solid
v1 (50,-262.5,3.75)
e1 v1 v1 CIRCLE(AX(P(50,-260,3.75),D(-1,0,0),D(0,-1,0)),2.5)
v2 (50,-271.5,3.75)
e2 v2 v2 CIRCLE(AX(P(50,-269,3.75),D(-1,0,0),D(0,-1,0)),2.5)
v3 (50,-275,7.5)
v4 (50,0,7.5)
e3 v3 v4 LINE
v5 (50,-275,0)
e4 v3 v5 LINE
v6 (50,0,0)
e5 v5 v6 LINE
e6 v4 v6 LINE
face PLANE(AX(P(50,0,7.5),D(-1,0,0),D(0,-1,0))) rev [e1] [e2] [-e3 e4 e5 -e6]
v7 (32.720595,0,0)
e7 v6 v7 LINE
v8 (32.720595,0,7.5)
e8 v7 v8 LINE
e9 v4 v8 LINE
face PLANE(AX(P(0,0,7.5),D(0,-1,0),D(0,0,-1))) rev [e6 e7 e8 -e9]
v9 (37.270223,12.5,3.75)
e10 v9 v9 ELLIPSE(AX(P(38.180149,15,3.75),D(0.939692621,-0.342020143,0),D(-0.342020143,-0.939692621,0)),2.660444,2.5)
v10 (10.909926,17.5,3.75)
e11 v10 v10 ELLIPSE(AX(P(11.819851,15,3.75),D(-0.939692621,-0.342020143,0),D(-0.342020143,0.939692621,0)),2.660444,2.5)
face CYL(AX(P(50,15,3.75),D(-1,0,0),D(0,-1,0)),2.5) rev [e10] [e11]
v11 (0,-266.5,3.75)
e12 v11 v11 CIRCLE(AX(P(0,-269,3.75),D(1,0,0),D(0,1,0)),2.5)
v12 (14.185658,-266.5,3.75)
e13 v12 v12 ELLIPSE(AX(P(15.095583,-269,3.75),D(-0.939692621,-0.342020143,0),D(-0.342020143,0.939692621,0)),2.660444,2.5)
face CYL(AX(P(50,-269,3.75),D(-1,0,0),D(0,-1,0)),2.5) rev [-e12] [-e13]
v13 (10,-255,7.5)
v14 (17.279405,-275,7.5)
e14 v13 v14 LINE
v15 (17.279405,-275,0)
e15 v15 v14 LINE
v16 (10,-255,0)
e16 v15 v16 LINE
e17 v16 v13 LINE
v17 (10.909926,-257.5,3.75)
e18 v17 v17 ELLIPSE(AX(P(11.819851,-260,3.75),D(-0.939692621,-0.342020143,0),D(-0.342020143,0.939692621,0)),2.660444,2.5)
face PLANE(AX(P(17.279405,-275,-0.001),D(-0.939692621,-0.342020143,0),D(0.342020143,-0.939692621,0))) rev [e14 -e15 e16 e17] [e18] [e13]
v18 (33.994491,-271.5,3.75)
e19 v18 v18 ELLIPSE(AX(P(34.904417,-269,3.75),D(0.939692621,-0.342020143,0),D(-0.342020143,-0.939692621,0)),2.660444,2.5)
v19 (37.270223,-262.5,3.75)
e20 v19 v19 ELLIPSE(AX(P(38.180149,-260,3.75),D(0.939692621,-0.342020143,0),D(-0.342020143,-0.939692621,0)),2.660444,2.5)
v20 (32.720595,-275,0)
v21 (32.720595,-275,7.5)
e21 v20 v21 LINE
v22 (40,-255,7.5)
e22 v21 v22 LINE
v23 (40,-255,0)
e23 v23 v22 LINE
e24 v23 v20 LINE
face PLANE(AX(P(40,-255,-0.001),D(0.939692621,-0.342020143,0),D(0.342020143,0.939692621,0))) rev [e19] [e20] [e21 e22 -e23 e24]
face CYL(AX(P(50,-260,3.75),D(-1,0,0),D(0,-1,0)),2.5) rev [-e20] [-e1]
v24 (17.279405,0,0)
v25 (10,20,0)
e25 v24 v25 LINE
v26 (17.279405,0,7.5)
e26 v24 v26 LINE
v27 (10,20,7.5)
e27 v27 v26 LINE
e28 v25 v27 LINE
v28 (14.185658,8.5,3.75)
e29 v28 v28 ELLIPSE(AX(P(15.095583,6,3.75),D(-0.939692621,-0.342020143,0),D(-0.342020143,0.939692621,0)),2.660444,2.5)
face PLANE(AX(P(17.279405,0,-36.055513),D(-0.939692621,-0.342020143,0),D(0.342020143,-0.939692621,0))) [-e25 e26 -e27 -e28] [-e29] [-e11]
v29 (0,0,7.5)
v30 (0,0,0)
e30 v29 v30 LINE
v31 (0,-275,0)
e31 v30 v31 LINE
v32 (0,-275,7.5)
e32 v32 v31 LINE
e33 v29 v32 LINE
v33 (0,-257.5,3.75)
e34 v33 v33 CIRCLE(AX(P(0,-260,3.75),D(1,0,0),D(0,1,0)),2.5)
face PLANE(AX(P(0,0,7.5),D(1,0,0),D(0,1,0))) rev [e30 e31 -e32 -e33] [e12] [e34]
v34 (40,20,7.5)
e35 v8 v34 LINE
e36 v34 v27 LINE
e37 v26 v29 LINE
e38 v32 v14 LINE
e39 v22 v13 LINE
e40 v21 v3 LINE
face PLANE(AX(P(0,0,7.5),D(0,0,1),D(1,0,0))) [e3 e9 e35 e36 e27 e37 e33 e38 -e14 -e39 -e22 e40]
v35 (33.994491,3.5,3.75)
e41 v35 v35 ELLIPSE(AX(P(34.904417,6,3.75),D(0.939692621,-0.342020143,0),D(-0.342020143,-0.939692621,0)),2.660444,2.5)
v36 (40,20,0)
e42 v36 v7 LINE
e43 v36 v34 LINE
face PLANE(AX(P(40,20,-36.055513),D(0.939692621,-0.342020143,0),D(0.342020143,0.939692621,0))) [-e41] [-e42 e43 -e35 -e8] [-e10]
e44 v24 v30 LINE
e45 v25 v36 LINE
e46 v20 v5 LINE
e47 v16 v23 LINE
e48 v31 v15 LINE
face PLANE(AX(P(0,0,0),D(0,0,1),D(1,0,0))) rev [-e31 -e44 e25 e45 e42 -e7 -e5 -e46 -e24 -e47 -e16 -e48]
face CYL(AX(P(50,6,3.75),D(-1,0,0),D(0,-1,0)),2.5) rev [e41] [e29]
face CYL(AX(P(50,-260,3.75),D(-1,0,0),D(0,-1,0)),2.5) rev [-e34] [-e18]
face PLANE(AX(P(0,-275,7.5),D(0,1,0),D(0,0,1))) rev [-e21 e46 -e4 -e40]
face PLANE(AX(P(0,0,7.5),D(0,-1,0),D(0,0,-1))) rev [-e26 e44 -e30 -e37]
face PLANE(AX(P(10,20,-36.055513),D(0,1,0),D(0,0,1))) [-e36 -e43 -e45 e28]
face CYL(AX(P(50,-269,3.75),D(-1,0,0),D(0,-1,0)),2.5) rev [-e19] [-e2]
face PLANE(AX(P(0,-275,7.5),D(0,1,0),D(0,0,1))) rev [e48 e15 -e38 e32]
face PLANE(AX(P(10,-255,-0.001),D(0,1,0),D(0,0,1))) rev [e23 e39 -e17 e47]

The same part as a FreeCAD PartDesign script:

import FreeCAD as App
import Part
import Sketcher

V = App.Vector
Q = App.Units.Quantity

doc = App.newDocument("Part")
body = doc.addObject("PartDesign::Body", "Body")

# Sketch on XY plane
sketch1 = doc.addObject("Sketcher::SketchObject", "Sketch")
body.addObject(sketch1)
sketch1.AttachmentSupport = (doc.XY_Plane, [""])
sketch1.MapMode = "FlatFace"
sketch1.addGeometry(Part.LineSegment(V(0, 0, 0), V(0, -275, 0)), False)
sketch1.addGeometry(Part.LineSegment(V(0, -275, 0), V(50, -275, 0)), False)
sketch1.addGeometry(Part.LineSegment(V(50, -275, 0), V(50, 0, 0)), False)
sketch1.addGeometry(Part.LineSegment(V(50, 0, 0), V(0, 0, 0)), False)
sketch1.addConstraint(Sketcher.Constraint("Coincident", 0, 2, 1, 1))
sketch1.addConstraint(Sketcher.Constraint("Coincident", 1, 2, 2, 1))
sketch1.addConstraint(Sketcher.Constraint("Coincident", 2, 2, 3, 1))
sketch1.addConstraint(Sketcher.Constraint("Coincident", 3, 2, 0, 1))
sketch1.addConstraint(Sketcher.Constraint("Vertical", 0))
sketch1.addConstraint(Sketcher.Constraint("Horizontal", 1))
sketch1.addConstraint(Sketcher.Constraint("Vertical", 2))
sketch1.addConstraint(Sketcher.Constraint("Horizontal", 3))
sketch1.addConstraint(Sketcher.Constraint("Coincident", 3, 2, -1, 1))
sketch1.addConstraint(Sketcher.Constraint("DistanceX", 1, 1, 1, 2, Q("50 mm")))
sketch1.addConstraint(Sketcher.Constraint("DistanceY", 0, 2, 0, 1, Q("275 mm")))
pad1 = doc.addObject("PartDesign::Pad", "Pad")
body.addObject(pad1)
pad1.Profile = sketch1
pad1.Length = 7.5

# Sketch on XY plane
sketch2 = doc.addObject("Sketcher::SketchObject", "Sketch001")
body.addObject(sketch2)
sketch2.AttachmentSupport = (doc.XY_Plane, [""])
sketch2.MapMode = "FlatFace"
sketch2.AttachmentOffset = App.Placement(V(0, 0, 7.5), App.Rotation())
sketch2.addGeometry(Part.LineSegment(V(10, 20, 0), V(17.279405, 0, 0)), False)
sketch2.addGeometry(Part.LineSegment(V(17.279405, 0, 0), V(32.720595, 0, 0)), False)
sketch2.addGeometry(Part.LineSegment(V(32.720595, 0, 0), V(40, 20, 0)), False)
sketch2.addGeometry(Part.LineSegment(V(40, 20, 0), V(10, 20, 0)), False)
sketch2.addConstraint(Sketcher.Constraint("Coincident", 0, 2, 1, 1))
sketch2.addConstraint(Sketcher.Constraint("Coincident", 1, 2, 2, 1))
sketch2.addConstraint(Sketcher.Constraint("Coincident", 2, 2, 3, 1))
sketch2.addConstraint(Sketcher.Constraint("Coincident", 3, 2, 0, 1))
sketch2.addConstraint(Sketcher.Constraint("Horizontal", 1))
sketch2.addConstraint(Sketcher.Constraint("Horizontal", 3))
sketch2.addConstraint(Sketcher.Constraint("PointOnObject", 0, 2, -1))
sketch2.addConstraint(Sketcher.Constraint("Equal", 0, 2))
sketch2.addConstraint(Sketcher.Constraint("DistanceX", 3, 2, 3, 1, Q("30 mm")))
sketch2.addConstraint(Sketcher.Constraint("Angle", 0, Q("-70 deg")))
sketch2.addConstraint(Sketcher.Constraint("DistanceX", -1, 1, 2, 2, Q("40 mm")))
sketch2.addConstraint(Sketcher.Constraint("DistanceY", -1, 1, 2, 2, Q("20 mm")))
pad2 = doc.addObject("PartDesign::Pad", "Pad001")
body.addObject(pad2)
pad2.Profile = sketch2
pad2.Length = 7.5
pad2.Reversed = True

# Sketch on YZ plane
sketch3 = doc.addObject("Sketcher::SketchObject", "Sketch002")
body.addObject(sketch3)
sketch3.AttachmentSupport = (doc.YZ_Plane, [""])
sketch3.MapMode = "FlatFace"
sketch3.addGeometry(Part.Circle(V(15, 3.75, 0), V(0, 0, 1), 2.5), False)
sketch3.addGeometry(Part.Circle(V(6, 3.75, 0), V(0, 0, 1), 2.5), False)
sketch3.addConstraint(Sketcher.Constraint("Equal", 0, 1))
sketch3.addConstraint(Sketcher.Constraint("Horizontal", 0, 3, 1, 3))
sketch3.addConstraint(Sketcher.Constraint("Diameter", 0, Q("5 mm")))
sketch3.addConstraint(Sketcher.Constraint("DistanceX", -1, 1, 0, 3, Q("15 mm")))
sketch3.addConstraint(Sketcher.Constraint("DistanceX", -1, 1, 1, 3, Q("6 mm")))
sketch3.addConstraint(Sketcher.Constraint("DistanceY", -1, 1, 0, 3, Q("3.75 mm")))
pocket1 = doc.addObject("PartDesign::Pocket", "Pocket")
body.addObject(pocket1)
pocket1.Profile = sketch3
pocket1.Type = "ThroughAll"
pocket1.Reversed = True

# Sketch on XY plane
sketch4 = doc.addObject("Sketcher::SketchObject", "Sketch003")
body.addObject(sketch4)
sketch4.AttachmentSupport = (doc.XY_Plane, [""])
sketch4.MapMode = "FlatFace"
sketch4.AttachmentOffset = App.Placement(V(0, 0, 7.5), App.Rotation())
sketch4.addGeometry(Part.LineSegment(V(10, -255, 0), V(17.279405, -275, 0)), False)
sketch4.addGeometry(Part.LineSegment(V(17.279405, -275, 0), V(32.720595, -275, 0)), False)
sketch4.addGeometry(Part.LineSegment(V(32.720595, -275, 0), V(40, -255, 0)), False)
sketch4.addGeometry(Part.LineSegment(V(40, -255, 0), V(10, -255, 0)), False)
sketch4.addConstraint(Sketcher.Constraint("Coincident", 0, 2, 1, 1))
sketch4.addConstraint(Sketcher.Constraint("Coincident", 1, 2, 2, 1))
sketch4.addConstraint(Sketcher.Constraint("Coincident", 2, 2, 3, 1))
sketch4.addConstraint(Sketcher.Constraint("Coincident", 3, 2, 0, 1))
sketch4.addConstraint(Sketcher.Constraint("Horizontal", 1))
sketch4.addConstraint(Sketcher.Constraint("Horizontal", 3))
sketch4.addConstraint(Sketcher.Constraint("Equal", 0, 2))
sketch4.addConstraint(Sketcher.Constraint("DistanceX", 3, 2, 3, 1, Q("30 mm")))
sketch4.addConstraint(Sketcher.Constraint("Angle", 0, Q("-70 deg")))
sketch4.addConstraint(Sketcher.Constraint("DistanceY", 0, 2, -1, 1, Q("275 mm")))
sketch4.addConstraint(Sketcher.Constraint("DistanceX", -1, 1, 2, 2, Q("40 mm")))
sketch4.addConstraint(Sketcher.Constraint("DistanceY", 2, 2, -1, 1, Q("255 mm")))
pocket2 = doc.addObject("PartDesign::Pocket", "Pocket001")
body.addObject(pocket2)
pocket2.Profile = sketch4
pocket2.Type = "UpToFirst"

# Sketch on YZ plane
sketch5 = doc.addObject("Sketcher::SketchObject", "Sketch004")
body.addObject(sketch5)
sketch5.AttachmentSupport = (doc.YZ_Plane, [""])
sketch5.MapMode = "FlatFace"
sketch5.addGeometry(Part.Circle(V(-269, 3.75, 0), V(0, 0, 1), 2.5), False)
sketch5.addGeometry(Part.Circle(V(-260, 3.75, 0), V(0, 0, 1), 2.5), False)
sketch5.addConstraint(Sketcher.Constraint("Equal", 0, 1))
sketch5.addConstraint(Sketcher.Constraint("Horizontal", 0, 3, 1, 3))
sketch5.addConstraint(Sketcher.Constraint("Diameter", 0, Q("5 mm")))
sketch5.addConstraint(Sketcher.Constraint("DistanceX", 0, 3, -1, 1, Q("269 mm")))
sketch5.addConstraint(Sketcher.Constraint("DistanceX", 1, 3, -1, 1, Q("260 mm")))
sketch5.addConstraint(Sketcher.Constraint("DistanceY", -1, 1, 0, 3, Q("3.75 mm")))
pocket3 = doc.addObject("PartDesign::Pocket", "Pocket002")
body.addObject(pocket3)
pocket3.Profile = sketch5
pocket3.Type = "ThroughAll"
pocket3.Midplane = True

doc.recompute()
